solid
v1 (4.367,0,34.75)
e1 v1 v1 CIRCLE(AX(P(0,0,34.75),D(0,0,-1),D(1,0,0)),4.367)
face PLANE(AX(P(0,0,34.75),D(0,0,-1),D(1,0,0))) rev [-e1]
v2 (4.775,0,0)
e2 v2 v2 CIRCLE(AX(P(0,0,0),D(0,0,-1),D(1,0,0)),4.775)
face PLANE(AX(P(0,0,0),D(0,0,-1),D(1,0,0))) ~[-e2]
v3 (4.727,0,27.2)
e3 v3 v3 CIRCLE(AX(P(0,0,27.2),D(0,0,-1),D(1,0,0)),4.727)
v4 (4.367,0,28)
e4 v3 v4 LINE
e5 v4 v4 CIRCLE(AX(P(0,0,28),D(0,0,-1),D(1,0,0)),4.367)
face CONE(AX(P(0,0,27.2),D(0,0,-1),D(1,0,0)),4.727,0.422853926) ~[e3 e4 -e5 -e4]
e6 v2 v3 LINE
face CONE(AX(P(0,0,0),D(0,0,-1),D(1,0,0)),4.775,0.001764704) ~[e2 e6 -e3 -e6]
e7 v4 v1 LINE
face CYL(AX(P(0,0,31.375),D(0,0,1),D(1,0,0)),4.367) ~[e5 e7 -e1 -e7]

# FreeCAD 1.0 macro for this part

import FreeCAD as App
import Part
import Sketcher

V = App.Vector


def add_polygon(sketch, points):
    """Adds a closed chain of lines whose ends are joined by coincident constraints."""
    first, n = sketch.GeometryCount, len(points)
    for a, b in zip(points, points[1:] + points[:1]):
        sketch.addGeometry(Part.LineSegment(App.Vector(*a, 0), App.Vector(*b, 0)), False)
    for i in range(n):
        sketch.addConstraint(Sketcher.Constraint("Coincident", first + i, 2, first + (i + 1) % n, 1))

doc = App.newDocument("Part")
body = doc.addObject("PartDesign::Body", "Body")

# Sketch on XZ plane
sketch1 = body.newObject("Sketcher::SketchObject", "Sketch")
sketch1.AttachmentSupport = (doc.getObject("XZ_Plane"), [""])
sketch1.MapMode = "FlatFace"
add_polygon(sketch1, [(4.7, 27.2), (4.4, 28), (4.4, 34.8), (0, 34.8), (0, 0), (4.8, 0)])  # lines 0-5
sketch1.addConstraint(Sketcher.Constraint("Vertical", 1))
sketch1.addConstraint(Sketcher.Constraint("Horizontal", 2))
sketch1.addConstraint(Sketcher.Constraint("Vertical", 3))
sketch1.addConstraint(Sketcher.Constraint("Horizontal", 4))
sketch1.addConstraint(Sketcher.Constraint("Coincident", 3, 2, -1, 1))
sketch1.addConstraint(Sketcher.Constraint("DistanceY", -1, 1, 0, 2, 28.0))
sketch1.addConstraint(Sketcher.Constraint("DistanceY", 1, 1, 1, 2, 6.75))
sketch1.addConstraint(Sketcher.Constraint("DistanceY", -1, 1, 5, 2, 27.2))
sketch1.addConstraint(Sketcher.Constraint("DistanceX", 2, 2, 2, 1, 4.367))
sketch1.addConstraint(Sketcher.Constraint("DistanceX", 4, 1, 4, 2, 4.775))
sketch1.addConstraint(Sketcher.Constraint("DistanceX", 0, 2, 5, 2, 0.36))
revolution = body.newObject("PartDesign::Revolution", "Revolution")
revolution.Profile = sketch1
revolution.ReferenceAxis = (sketch1, ["V_Axis"])
revolution.Angle = 360

doc.recompute()
